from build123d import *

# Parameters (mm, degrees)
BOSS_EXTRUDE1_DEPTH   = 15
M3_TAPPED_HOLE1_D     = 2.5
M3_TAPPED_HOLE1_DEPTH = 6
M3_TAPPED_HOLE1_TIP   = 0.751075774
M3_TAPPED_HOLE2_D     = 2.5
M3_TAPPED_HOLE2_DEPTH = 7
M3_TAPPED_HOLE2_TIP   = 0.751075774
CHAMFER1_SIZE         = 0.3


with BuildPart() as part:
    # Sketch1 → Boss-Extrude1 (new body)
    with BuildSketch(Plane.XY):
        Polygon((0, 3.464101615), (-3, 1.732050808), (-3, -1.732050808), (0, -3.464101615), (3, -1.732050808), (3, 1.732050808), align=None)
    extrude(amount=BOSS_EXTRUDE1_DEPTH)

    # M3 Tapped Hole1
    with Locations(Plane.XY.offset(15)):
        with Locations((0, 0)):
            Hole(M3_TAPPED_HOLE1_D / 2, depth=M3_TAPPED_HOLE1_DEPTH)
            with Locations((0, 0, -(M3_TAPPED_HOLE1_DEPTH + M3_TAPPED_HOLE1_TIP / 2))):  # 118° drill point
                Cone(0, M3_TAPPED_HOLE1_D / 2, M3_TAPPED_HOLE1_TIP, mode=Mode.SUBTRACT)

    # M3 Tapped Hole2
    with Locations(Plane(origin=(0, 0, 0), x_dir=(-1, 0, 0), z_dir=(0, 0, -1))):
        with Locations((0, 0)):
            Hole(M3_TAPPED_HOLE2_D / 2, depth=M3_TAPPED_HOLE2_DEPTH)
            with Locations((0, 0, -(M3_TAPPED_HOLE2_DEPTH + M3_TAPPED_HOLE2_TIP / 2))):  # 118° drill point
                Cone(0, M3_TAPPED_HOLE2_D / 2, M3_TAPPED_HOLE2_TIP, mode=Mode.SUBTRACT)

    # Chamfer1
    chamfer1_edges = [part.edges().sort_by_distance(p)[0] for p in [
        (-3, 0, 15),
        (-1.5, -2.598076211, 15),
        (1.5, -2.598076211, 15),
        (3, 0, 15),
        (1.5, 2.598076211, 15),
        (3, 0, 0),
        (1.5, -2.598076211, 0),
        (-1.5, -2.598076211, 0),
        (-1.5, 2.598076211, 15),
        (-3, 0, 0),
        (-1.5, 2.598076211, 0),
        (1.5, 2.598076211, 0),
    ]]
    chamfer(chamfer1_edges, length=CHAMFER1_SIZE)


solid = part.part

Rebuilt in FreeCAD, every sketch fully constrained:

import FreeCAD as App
import Part
import Sketcher
from FreeCAD import Vector
Q = App.Units.Quantity


def edges_at(feature, points):
    """Names of the edges that pass closest to the given points."""
    edges = feature.Shape.Edges
    near = lambda p: min(range(len(edges)), key=lambda i: edges[i].distToShape(Part.Vertex(*p))[0])
    return sorted({f"Edge{near(p) + 1}" for p in points})

doc = App.newDocument("Part")
body = doc.addObject("PartDesign::Body", "Body")

# Sketch on XY plane
sketch1 = body.newObject("Sketcher::SketchObject", "Sketch")
sketch1.AttachmentSupport = (doc.getObject("XY_Plane"), [""])
sketch1.MapMode = "FlatFace"
sketch1.addGeometry([
    Part.LineSegment(Vector(0, 3.464102, 0), Vector(-3, 1.732051, 0)),  # 0
    Part.LineSegment(Vector(-3, 1.732051, 0), Vector(-3, -1.732051, 0)),  # 1
    Part.LineSegment(Vector(-3, -1.732051, 0), Vector(0, -3.464102, 0)),  # 2
    Part.LineSegment(Vector(0, -3.464102, 0), Vector(3, -1.732051, 0)),  # 3
    Part.LineSegment(Vector(3, -1.732051, 0), Vector(3, 1.732051, 0)),  # 4
    Part.LineSegment(Vector(3, 1.732051, 0), Vector(0, 3.464102, 0)),  # 5
], False)
sketch1.addConstraint([
    Sketcher.Constraint("Coincident", 0, 2, 1, 1),
    Sketcher.Constraint("Coincident", 1, 2, 2, 1),
    Sketcher.Constraint("Coincident", 2, 2, 3, 1),
    Sketcher.Constraint("Coincident", 3, 2, 4, 1),
    Sketcher.Constraint("Coincident", 4, 2, 5, 1),
    Sketcher.Constraint("Coincident", 5, 2, 0, 1),
    Sketcher.Constraint("Vertical", 1),
    Sketcher.Constraint("Vertical", 4),
    Sketcher.Constraint("Symmetric", 0, 2, 3, 2, -1, 1),
    Sketcher.Constraint("Symmetric", 2, 2, 5, 2, -1, 1),
    Sketcher.Constraint("PointOnObject", 2, 2, -2),
    Sketcher.Constraint("Parallel", 2, 5),
    Sketcher.Constraint("Horizontal", 1, 2, 3, 2),
    Sketcher.Constraint("Angle", 0, Q("-150 deg")),
    Sketcher.Constraint("DistanceX", 0, 2, -1, 1, 3.0),
    Sketcher.Constraint("DistanceY", 1, 2, 1, 1, 3.464102),
])
pad1 = body.newObject("PartDesign::Pad", "Pad")
pad1.Profile = sketch1
pad1.Length = 15

# Sketch on XY plane
sketch2 = body.newObject("Sketcher::SketchObject", "Sketch001")
sketch2.AttachmentSupport = (doc.getObject("XY_Plane"), [""])
sketch2.MapMode = "FlatFace"
sketch2.AttachmentOffset = App.Placement(Vector(0, 0, 15), App.Rotation())
sketch2.addGeometry(Part.Circle(Vector(0, 0, 0), Vector(0, 0, 1), 1.25), False)
sketch2.addConstraint([
    Sketcher.Constraint("Coincident", 0, 3, -1, 1),
    Sketcher.Constraint("Diameter", 0, 2.5),
])
doc.recompute()
hole = body.newObject("PartDesign::Hole", "Hole")
hole.Profile = sketch2
hole.ThreadType = "None"
hole.Diameter = 2.5
hole.DepthType = "Dimension"
hole.Depth = 6
hole.DrillPoint = "Angled"
hole.DrillPointAngle = 118

# Sketch on XY plane
sketch3 = body.newObject("Sketcher::SketchObject", "Sketch002")
sketch3.AttachmentSupport = (doc.getObject("XY_Plane"), [""])
sketch3.MapMode = "FlatFace"
sketch3.addGeometry(Part.Circle(Vector(0, 0, 0), Vector(0, 0, 1), 1.25), False)
sketch3.addConstraint([
    Sketcher.Constraint("Coincident", 0, 3, -1, 1),
    Sketcher.Constraint("Diameter", 0, 2.5),
])
doc.recompute()
hole2 = body.newObject("PartDesign::Hole", "Hole001")
hole2.Profile = sketch3
hole2.ThreadType = "None"
hole2.Diameter = 2.5
hole2.DepthType = "Dimension"
hole2.Depth = 7
hole2.DrillPoint = "Angled"
hole2.DrillPointAngle = 118
hole2.Reversed = True
doc.recompute()

chamfer = body.newObject("PartDesign::Chamfer", "Chamfer")
chamfer.Base = (hole2, edges_at(hole2, [
    (-3, 0, 15),
    (-1.5, -2.598, 15),
    (1.5, -2.598, 15),
    (3, 0, 15),
    (1.5, 2.598, 15),
    (3, 0, 0),
    (1.5, -2.598, 0),
    (-1.5, -2.598, 0),
    (-1.5, 2.598, 15),
    (-3, 0, 0),
    (-1.5, 2.598, 0),
    (1.5, 2.598, 0),
]))
chamfer.Size = 0.3

doc.recompute()
